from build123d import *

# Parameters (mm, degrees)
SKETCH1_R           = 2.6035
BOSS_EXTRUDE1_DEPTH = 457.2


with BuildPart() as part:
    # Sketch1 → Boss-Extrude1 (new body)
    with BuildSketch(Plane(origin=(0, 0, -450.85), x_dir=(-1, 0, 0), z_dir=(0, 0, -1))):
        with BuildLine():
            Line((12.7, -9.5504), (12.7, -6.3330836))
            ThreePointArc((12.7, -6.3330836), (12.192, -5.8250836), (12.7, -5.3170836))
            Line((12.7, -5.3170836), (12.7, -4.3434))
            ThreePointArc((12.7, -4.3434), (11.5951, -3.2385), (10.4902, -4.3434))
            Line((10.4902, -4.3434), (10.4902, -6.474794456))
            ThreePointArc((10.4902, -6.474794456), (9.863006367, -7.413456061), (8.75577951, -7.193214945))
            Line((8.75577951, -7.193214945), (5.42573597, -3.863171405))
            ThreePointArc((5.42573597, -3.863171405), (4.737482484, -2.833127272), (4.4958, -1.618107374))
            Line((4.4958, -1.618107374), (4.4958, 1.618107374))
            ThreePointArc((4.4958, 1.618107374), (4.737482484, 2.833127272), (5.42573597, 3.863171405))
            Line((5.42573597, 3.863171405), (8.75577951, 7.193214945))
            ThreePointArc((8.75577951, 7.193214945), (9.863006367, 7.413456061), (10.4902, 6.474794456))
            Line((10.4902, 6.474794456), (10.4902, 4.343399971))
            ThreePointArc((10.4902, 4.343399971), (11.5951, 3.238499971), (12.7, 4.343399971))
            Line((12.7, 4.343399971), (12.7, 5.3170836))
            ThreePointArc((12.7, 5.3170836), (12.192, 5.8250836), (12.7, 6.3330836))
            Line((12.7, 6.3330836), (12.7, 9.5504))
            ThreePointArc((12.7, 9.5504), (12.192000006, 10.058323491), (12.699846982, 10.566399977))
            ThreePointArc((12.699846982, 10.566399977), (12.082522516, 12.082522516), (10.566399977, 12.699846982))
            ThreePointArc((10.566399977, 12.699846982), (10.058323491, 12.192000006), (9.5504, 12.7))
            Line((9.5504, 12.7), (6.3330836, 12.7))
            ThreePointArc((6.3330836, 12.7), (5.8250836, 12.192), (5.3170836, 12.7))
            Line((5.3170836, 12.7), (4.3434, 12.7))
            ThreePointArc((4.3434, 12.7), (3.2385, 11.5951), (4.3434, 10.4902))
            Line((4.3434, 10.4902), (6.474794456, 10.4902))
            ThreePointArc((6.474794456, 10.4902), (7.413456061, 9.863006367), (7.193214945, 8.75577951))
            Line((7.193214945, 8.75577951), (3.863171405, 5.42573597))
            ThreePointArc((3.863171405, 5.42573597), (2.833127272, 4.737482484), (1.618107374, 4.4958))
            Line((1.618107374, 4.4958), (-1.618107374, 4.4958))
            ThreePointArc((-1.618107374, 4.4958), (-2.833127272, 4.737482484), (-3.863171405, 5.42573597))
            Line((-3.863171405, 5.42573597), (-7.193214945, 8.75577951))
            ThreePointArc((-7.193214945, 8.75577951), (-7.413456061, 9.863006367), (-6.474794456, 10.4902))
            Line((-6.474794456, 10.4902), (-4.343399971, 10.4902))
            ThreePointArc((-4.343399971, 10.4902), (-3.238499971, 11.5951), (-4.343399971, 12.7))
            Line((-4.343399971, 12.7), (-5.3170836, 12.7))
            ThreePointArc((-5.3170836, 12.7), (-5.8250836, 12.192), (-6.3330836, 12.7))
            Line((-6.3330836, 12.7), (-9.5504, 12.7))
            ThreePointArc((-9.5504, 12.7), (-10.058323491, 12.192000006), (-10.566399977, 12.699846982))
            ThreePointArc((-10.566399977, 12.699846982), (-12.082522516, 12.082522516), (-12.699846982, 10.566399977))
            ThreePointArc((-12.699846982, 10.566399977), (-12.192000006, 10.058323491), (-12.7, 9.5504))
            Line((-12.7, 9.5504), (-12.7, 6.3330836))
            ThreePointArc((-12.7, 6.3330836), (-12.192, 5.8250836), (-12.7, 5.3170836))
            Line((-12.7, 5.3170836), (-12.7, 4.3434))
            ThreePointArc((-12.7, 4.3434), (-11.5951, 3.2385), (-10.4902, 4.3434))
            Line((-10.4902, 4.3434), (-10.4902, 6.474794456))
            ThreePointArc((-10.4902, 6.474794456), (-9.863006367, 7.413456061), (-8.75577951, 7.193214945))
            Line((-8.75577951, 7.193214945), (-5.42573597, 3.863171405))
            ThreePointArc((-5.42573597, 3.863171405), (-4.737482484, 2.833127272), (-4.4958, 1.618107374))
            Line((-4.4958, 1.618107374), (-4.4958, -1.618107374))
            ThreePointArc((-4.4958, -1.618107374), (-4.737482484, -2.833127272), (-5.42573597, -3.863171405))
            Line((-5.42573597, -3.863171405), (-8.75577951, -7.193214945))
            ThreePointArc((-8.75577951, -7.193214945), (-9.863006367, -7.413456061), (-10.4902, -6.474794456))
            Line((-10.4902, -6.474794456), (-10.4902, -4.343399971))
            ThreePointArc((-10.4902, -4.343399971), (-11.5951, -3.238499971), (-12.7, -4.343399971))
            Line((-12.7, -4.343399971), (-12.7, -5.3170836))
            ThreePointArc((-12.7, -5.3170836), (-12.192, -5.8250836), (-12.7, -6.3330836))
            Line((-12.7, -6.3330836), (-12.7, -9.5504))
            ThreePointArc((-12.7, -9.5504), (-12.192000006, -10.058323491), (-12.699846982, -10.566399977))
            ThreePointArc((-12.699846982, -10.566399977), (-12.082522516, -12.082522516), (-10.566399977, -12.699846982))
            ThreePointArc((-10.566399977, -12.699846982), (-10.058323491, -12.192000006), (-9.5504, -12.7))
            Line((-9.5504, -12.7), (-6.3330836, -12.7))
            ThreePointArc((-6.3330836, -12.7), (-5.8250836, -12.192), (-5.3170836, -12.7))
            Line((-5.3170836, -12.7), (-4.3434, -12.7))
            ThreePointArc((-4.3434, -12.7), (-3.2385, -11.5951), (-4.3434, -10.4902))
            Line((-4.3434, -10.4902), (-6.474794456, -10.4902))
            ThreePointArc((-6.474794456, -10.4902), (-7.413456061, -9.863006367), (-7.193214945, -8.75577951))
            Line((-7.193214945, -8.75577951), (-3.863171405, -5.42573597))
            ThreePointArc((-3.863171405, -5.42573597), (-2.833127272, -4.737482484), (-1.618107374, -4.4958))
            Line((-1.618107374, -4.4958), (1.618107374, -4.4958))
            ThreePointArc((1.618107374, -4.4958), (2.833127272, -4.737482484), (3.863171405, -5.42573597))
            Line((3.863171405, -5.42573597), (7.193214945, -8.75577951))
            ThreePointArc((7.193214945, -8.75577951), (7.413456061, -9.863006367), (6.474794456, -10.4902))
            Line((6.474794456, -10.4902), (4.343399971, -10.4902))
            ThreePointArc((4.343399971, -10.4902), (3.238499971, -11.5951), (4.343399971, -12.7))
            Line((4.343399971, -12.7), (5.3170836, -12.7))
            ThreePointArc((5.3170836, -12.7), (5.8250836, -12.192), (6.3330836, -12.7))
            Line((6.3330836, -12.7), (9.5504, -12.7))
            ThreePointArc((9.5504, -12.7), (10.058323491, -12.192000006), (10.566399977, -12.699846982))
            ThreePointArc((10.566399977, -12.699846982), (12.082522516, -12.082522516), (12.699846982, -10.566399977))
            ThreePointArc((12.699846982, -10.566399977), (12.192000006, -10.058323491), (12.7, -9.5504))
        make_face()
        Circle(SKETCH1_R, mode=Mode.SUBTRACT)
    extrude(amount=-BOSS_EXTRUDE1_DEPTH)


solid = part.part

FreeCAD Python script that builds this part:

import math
import FreeCAD as App
import Part
import Sketcher
from FreeCAD import Vector
Q = App.Units.Quantity

doc = App.newDocument("Part")
body = doc.addObject("PartDesign::Body", "Body")

# Sketch on XY plane
sketch1 = doc.addObject("Sketcher::SketchObject", "Sketch")
body.addObject(sketch1)
sketch1.AttachmentSupport = (doc.XY_Plane, [""])
sketch1.MapMode = "FlatFace"
sketch1.AttachmentOffset = App.Placement(Vector(0, 0, -17.75 * 25.4), App.Rotation())
sketch1.addGeometry([
    Part.LineSegment(Vector(-12.7, -9.6, 0), Vector(-12.7, -6.3, 0)),  # 0
    Part.ArcOfCircle(Part.Circle(Vector(-12.7, -5.8, 0), Vector(0, 0, 1), 0.5), math.radians(-90), math.radians(90)),  # 1
    Part.LineSegment(Vector(-12.7, -5.3, 0), Vector(-12.7, -4.3, 0)),  # 2
    Part.ArcOfCircle(Part.Circle(Vector(-11.6, -4.3, 0), Vector(0, 0, 1), 1.1), math.radians(0), math.radians(180)),  # 3
    Part.LineSegment(Vector(-10.5, -4.3, 0), Vector(-10.5, -6.5, 0)),  # 4
    Part.ArcOfCircle(Part.Circle(Vector(-9.5, -6.5, 0), Vector(0, 0, 1), 1), math.radians(180), math.radians(315)),  # 5
    Part.LineSegment(Vector(-8.8, -7.2, 0), Vector(-5.4, -3.9, 0)),  # 6
    Part.ArcOfCircle(Part.Circle(Vector(-7.7, -1.6, 0), Vector(0, 0, 1), 3.2), math.radians(-45), math.radians(0)),  # 7
    Part.LineSegment(Vector(-4.5, -1.6, 0), Vector(-4.5, 1.6, 0)),  # 8
    Part.ArcOfCircle(Part.Circle(Vector(-7.7, 1.6, 0), Vector(0, 0, 1), 3.2), math.radians(0), math.radians(45)),  # 9
    Part.LineSegment(Vector(-5.4, 3.9, 0), Vector(-8.8, 7.2, 0)),  # 10
    Part.ArcOfCircle(Part.Circle(Vector(-9.5, 6.5, 0), Vector(0, 0, 1), 1), math.radians(45), math.radians(180)),  # 11
    Part.LineSegment(Vector(-10.5, 6.5, 0), Vector(-10.5, 4.3, 0)),  # 12
    Part.ArcOfCircle(Part.Circle(Vector(-11.6, 4.3, 0), Vector(0, 0, 1), 1.1), math.radians(180), math.radians(360)),  # 13
    Part.LineSegment(Vector(-12.7, 4.3, 0), Vector(-12.7, 5.3, 0)),  # 14
    Part.ArcOfCircle(Part.Circle(Vector(-12.7, 5.8, 0), Vector(0, 0, 1), 0.5), math.radians(-90), math.radians(90)),  # 15
    Part.LineSegment(Vector(-12.7, 6.3, 0), Vector(-12.7, 9.6, 0)),  # 16
    Part.ArcOfCircle(Part.Circle(Vector(-12.7, 10.1, 0), Vector(0, 0, 1), 0.5), math.radians(-90), math.radians(90)),  # 17
    Part.ArcOfCircle(Part.Circle(Vector(-10.6, 10.6, 0), Vector(0, 0, 1), 2.1), math.radians(89), math.radians(181)),  # 18
    Part.ArcOfCircle(Part.Circle(Vector(-10.1, 12.7, 0), Vector(0, 0, 1), 0.5), math.radians(-180), math.radians(0)),  # 19
    Part.LineSegment(Vector(-9.6, 12.7, 0), Vector(-6.3, 12.7, 0)),  # 20
    Part.ArcOfCircle(Part.Circle(Vector(-5.8, 12.7, 0), Vector(0, 0, 1), 0.5), math.radians(180), math.radians(360)),  # 21
    Part.LineSegment(Vector(-5.3, 12.7, 0), Vector(-4.3, 12.7, 0)),  # 22
    Part.ArcOfCircle(Part.Circle(Vector(-4.3, 11.6, 0), Vector(0, 0, 1), 1.1), math.radians(-90), math.radians(90)),  # 23
    Part.LineSegment(Vector(-4.3, 10.5, 0), Vector(-6.5, 10.5, 0)),  # 24
    Part.ArcOfCircle(Part.Circle(Vector(-6.5, 9.5, 0), Vector(0, 0, 1), 1), math.radians(90), math.radians(225)),  # 25
    Part.LineSegment(Vector(-7.2, 8.8, 0), Vector(-3.9, 5.4, 0)),  # 26
    Part.ArcOfCircle(Part.Circle(Vector(-1.6, 7.7, 0), Vector(0, 0, 1), 3.2), math.radians(-135), math.radians(-90)),  # 27
    Part.LineSegment(Vector(-1.6, 4.5, 0), Vector(1.6, 4.5, 0)),  # 28
    Part.ArcOfCircle(Part.Circle(Vector(1.6, 7.7, 0), Vector(0, 0, 1), 3.2), math.radians(-90), math.radians(-45)),  # 29
    Part.LineSegment(Vector(3.9, 5.4, 0), Vector(7.2, 8.8, 0)),  # 30
    Part.ArcOfCircle(Part.Circle(Vector(6.5, 9.5, 0), Vector(0, 0, 1), 1), math.radians(-45), math.radians(90)),  # 31
    Part.LineSegment(Vector(6.5, 10.5, 0), Vector(4.3, 10.5, 0)),  # 32
    Part.ArcOfCircle(Part.Circle(Vector(4.3, 11.6, 0), Vector(0, 0, 1), 1.1), math.radians(90), math.radians(270)),  # 33
    Part.LineSegment(Vector(4.3, 12.7, 0), Vector(5.3, 12.7, 0)),  # 34
    Part.ArcOfCircle(Part.Circle(Vector(5.8, 12.7, 0), Vector(0, 0, 1), 0.5), math.radians(180), math.radians(360)),  # 35
    Part.LineSegment(Vector(6.3, 12.7, 0), Vector(9.6, 12.7, 0)),  # 36
    Part.ArcOfCircle(Part.Circle(Vector(10.1, 12.7, 0), Vector(0, 0, 1), 0.5), math.radians(180), math.radians(360)),  # 37
    Part.ArcOfCircle(Part.Circle(Vector(10.6, 10.6, 0), Vector(0, 0, 1), 2.1), math.radians(-1), math.radians(91)),  # 38
    Part.ArcOfCircle(Part.Circle(Vector(12.7, 10.1, 0), Vector(0, 0, 1), 0.5), math.radians(90), math.radians(270)),  # 39
    Part.LineSegment(Vector(12.7, 9.6, 0), Vector(12.7, 6.3, 0)),  # 40
    Part.ArcOfCircle(Part.Circle(Vector(12.7, 5.8, 0), Vector(0, 0, 1), 0.5), math.radians(90), math.radians(270)),  # 41
    Part.LineSegment(Vector(12.7, 5.3, 0), Vector(12.7, 4.3, 0)),  # 42
    Part.ArcOfCircle(Part.Circle(Vector(11.6, 4.3, 0), Vector(0, 0, 1), 1.1), math.radians(180), math.radians(360)),  # 43
    Part.LineSegment(Vector(10.5, 4.3, 0), Vector(10.5, 6.5, 0)),  # 44
    Part.ArcOfCircle(Part.Circle(Vector(9.5, 6.5, 0), Vector(0, 0, 1), 1), math.radians(0), math.radians(135)),  # 45
    Part.LineSegment(Vector(8.8, 7.2, 0), Vector(5.4, 3.9, 0)),  # 46
    Part.ArcOfCircle(Part.Circle(Vector(7.7, 1.6, 0), Vector(0, 0, 1), 3.2), math.radians(135), math.radians(180)),  # 47
    Part.LineSegment(Vector(4.5, 1.6, 0), Vector(4.5, -1.6, 0)),  # 48
    Part.ArcOfCircle(Part.Circle(Vector(7.7, -1.6, 0), Vector(0, 0, 1), 3.2), math.radians(180), math.radians(225)),  # 49
    Part.LineSegment(Vector(5.4, -3.9, 0), Vector(8.8, -7.2, 0)),  # 50
    Part.ArcOfCircle(Part.Circle(Vector(9.5, -6.5, 0), Vector(0, 0, 1), 1), math.radians(-135), math.radians(0)),  # 51
    Part.LineSegment(Vector(10.5, -6.5, 0), Vector(10.5, -4.3, 0)),  # 52
    Part.ArcOfCircle(Part.Circle(Vector(11.6, -4.3, 0), Vector(0, 0, 1), 1.1), math.radians(0), math.radians(180)),  # 53
    Part.LineSegment(Vector(12.7, -4.3, 0), Vector(12.7, -5.3, 0)),  # 54
    Part.ArcOfCircle(Part.Circle(Vector(12.7, -5.8, 0), Vector(0, 0, 1), 0.5), math.radians(90), math.radians(270)),  # 55
    Part.LineSegment(Vector(12.7, -6.3, 0), Vector(12.7, -9.6, 0)),  # 56
    Part.ArcOfCircle(Part.Circle(Vector(12.7, -10.1, 0), Vector(0, 0, 1), 0.5), math.radians(90), math.radians(270)),  # 57
    Part.ArcOfCircle(Part.Circle(Vector(10.6, -10.6, 0), Vector(0, 0, 1), 2.1), math.radians(-91), math.radians(1)),  # 58
    Part.ArcOfCircle(Part.Circle(Vector(10.1, -12.7, 0), Vector(0, 0, 1), 0.5), math.radians(0), math.radians(180)),  # 59
    Part.LineSegment(Vector(9.6, -12.7, 0), Vector(6.3, -12.7, 0)),  # 60
    Part.ArcOfCircle(Part.Circle(Vector(5.8, -12.7, 0), Vector(0, 0, 1), 0.5), math.radians(0), math.radians(180)),  # 61
    Part.LineSegment(Vector(5.3, -12.7, 0), Vector(4.3, -12.7, 0)),  # 62
    Part.ArcOfCircle(Part.Circle(Vector(4.3, -11.6, 0), Vector(0, 0, 1), 1.1), math.radians(90), math.radians(270)),  # 63
    Part.LineSegment(Vector(4.3, -10.5, 0), Vector(6.5, -10.5, 0)),  # 64
    Part.ArcOfCircle(Part.Circle(Vector(6.5, -9.5, 0), Vector(0, 0, 1), 1), math.radians(-90), math.radians(45)),  # 65
    Part.LineSegment(Vector(7.2, -8.8, 0), Vector(3.9, -5.4, 0)),  # 66
    Part.ArcOfCircle(Part.Circle(Vector(1.6, -7.7, 0), Vector(0, 0, 1), 3.2), math.radians(45), math.radians(90)),  # 67
    Part.LineSegment(Vector(1.6, -4.5, 0), Vector(-1.6, -4.5, 0)),  # 68
    Part.ArcOfCircle(Part.Circle(Vector(-1.6, -7.7, 0), Vector(0, 0, 1), 3.2), math.radians(90), math.radians(135)),  # 69
    Part.LineSegment(Vector(-3.9, -5.4, 0), Vector(-7.2, -8.8, 0)),  # 70
    Part.ArcOfCircle(Part.Circle(Vector(-6.5, -9.5, 0), Vector(0, 0, 1), 1), math.radians(135), math.radians(270)),  # 71
    Part.LineSegment(Vector(-6.5, -10.5, 0), Vector(-4.3, -10.5, 0)),  # 72
    Part.ArcOfCircle(Part.Circle(Vector(-4.3, -11.6, 0), Vector(0, 0, 1), 1.1), math.radians(-90), math.radians(90)),  # 73
    Part.LineSegment(Vector(-4.3, -12.7, 0), Vector(-5.3, -12.7, 0)),  # 74
    Part.ArcOfCircle(Part.Circle(Vector(-5.8, -12.7, 0), Vector(0, 0, 1), 0.5), math.radians(0), math.radians(180)),  # 75
    Part.LineSegment(Vector(-6.3, -12.7, 0), Vector(-9.6, -12.7, 0)),  # 76
    Part.ArcOfCircle(Part.Circle(Vector(-10.1, -12.7, 0), Vector(0, 0, 1), 0.5), math.radians(0), math.radians(180)),  # 77
    Part.ArcOfCircle(Part.Circle(Vector(-10.6, -10.6, 0), Vector(0, 0, 1), 2.1), math.radians(179), math.radians(271)),  # 78
    Part.ArcOfCircle(Part.Circle(Vector(-12.7, -10.1, 0), Vector(0, 0, 1), 0.5), math.radians(-90), math.radians(90)),  # 79
    Part.Circle(Vector(0, 0, 0), Vector(0, 0, 1), 2.6),  # 80
], False)
sketch1.addConstraint([
    Sketcher.Constraint("Coincident", 0, 2, 1, 1),
    Sketcher.Constraint("Coincident", 1, 2, 2, 1),
    Sketcher.Constraint("Tangent", 2, 2, 3, 2),
    Sketcher.Constraint("Tangent", 3, 1, 4, 1),
    Sketcher.Constraint("Tangent", 4, 2, 5, 1),
    Sketcher.Constraint("Tangent", 5, 2, 6, 1),
    Sketcher.Constraint("Tangent", 6, 2, 7, 1),
    Sketcher.Constraint("Tangent", 7, 2, 8, 1),
    Sketcher.Constraint("Tangent", 8, 2, 9, 1),
    Sketcher.Constraint("Tangent", 9, 2, 10, 1),
    Sketcher.Constraint("Tangent", 10, 2, 11, 1),
    Sketcher.Constraint("Tangent", 11, 2, 12, 1),
    Sketcher.Constraint("Tangent", 12, 2, 13, 2),
    Sketcher.Constraint("Tangent", 13, 1, 14, 1),
    Sketcher.Constraint("Coincident", 14, 2, 15, 1),
    Sketcher.Constraint("Coincident", 15, 2, 16, 1),
    Sketcher.Constraint("Coincident", 16, 2, 17, 1),
    Sketcher.Constraint("Coincident", 17, 2, 18, 2),
    Sketcher.Constraint("Coincident", 18, 1, 19, 1),
    Sketcher.Constraint("Coincident", 19, 2, 20, 1),
    Sketcher.Constraint("Coincident", 20, 2, 21, 1),
    Sketcher.Constraint("Coincident", 21, 2, 22, 1),
    Sketcher.Constraint("Tangent", 22, 2, 23, 2),
    Sketcher.Constraint("Tangent", 23, 1, 24, 1),
    Sketcher.Constraint("Tangent", 24, 2, 25, 1),
    Sketcher.Constraint("Tangent", 25, 2, 26, 1),
    Sketcher.Constraint("Tangent", 26, 2, 27, 1),
    Sketcher.Constraint("Tangent", 27, 2, 28, 1),
    Sketcher.Constraint("Tangent", 28, 2, 29, 1),
    Sketcher.Constraint("Tangent", 29, 2, 30, 1),
    Sketcher.Constraint("Tangent", 30, 2, 31, 1),
    Sketcher.Constraint("Tangent", 31, 2, 32, 1),
    Sketcher.Constraint("Tangent", 32, 2, 33, 2),
    Sketcher.Constraint("Tangent", 33, 1, 34, 1),
    Sketcher.Constraint("Coincident", 34, 2, 35, 1),
    Sketcher.Constraint("Coincident", 35, 2, 36, 1),
    Sketcher.Constraint("Coincident", 36, 2, 37, 1),
    Sketcher.Constraint("Coincident", 37, 2, 38, 2),
    Sketcher.Constraint("Coincident", 38, 1, 39, 1),
    Sketcher.Constraint("Coincident", 39, 2, 40, 1),
    Sketcher.Constraint("Coincident", 40, 2, 41, 1),
    Sketcher.Constraint("Coincident", 41, 2, 42, 1),
    Sketcher.Constraint("Tangent", 42, 2, 43, 2),
    Sketcher.Constraint("Tangent", 43, 1, 44, 1),
    Sketcher.Constraint("Tangent", 44, 2, 45, 1),
    Sketcher.Constraint("Tangent", 45, 2, 46, 1),
    Sketcher.Constraint("Tangent", 46, 2, 47, 1),
    Sketcher.Constraint("Tangent", 47, 2, 48, 1),
    Sketcher.Constraint("Tangent", 48, 2, 49, 1),
    Sketcher.Constraint("Tangent", 49, 2, 50, 1),
    Sketcher.Constraint("Tangent", 50, 2, 51, 1),
    Sketcher.Constraint("Tangent", 51, 2, 52, 1),
    Sketcher.Constraint("Tangent", 52, 2, 53, 2),
    Sketcher.Constraint("Tangent", 53, 1, 54, 1),
    Sketcher.Constraint("Coincident", 54, 2, 55, 1),
    Sketcher.Constraint("Coincident", 55, 2, 56, 1),
    Sketcher.Constraint("Coincident", 56, 2, 57, 1),
    Sketcher.Constraint("Coincident", 57, 2, 58, 2),
    Sketcher.Constraint("Coincident", 58, 1, 59, 1),
    Sketcher.Constraint("Coincident", 59, 2, 60, 1),
    Sketcher.Constraint("Coincident", 60, 2, 61, 1),
    Sketcher.Constraint("Coincident", 61, 2, 62, 1),
    Sketcher.Constraint("Tangent", 62, 2, 63, 2),
    Sketcher.Constraint("Tangent", 63, 1, 64, 1),
    Sketcher.Constraint("Tangent", 64, 2, 65, 1),
    Sketcher.Constraint("Tangent", 65, 2, 66, 1),
    Sketcher.Constraint("Tangent", 66, 2, 67, 1),
    Sketcher.Constraint("Tangent", 67, 2, 68, 1),
    Sketcher.Constraint("Tangent", 68, 2, 69, 1),
    Sketcher.Constraint("Tangent", 69, 2, 70, 1),
    Sketcher.Constraint("Tangent", 70, 2, 71, 1),
    Sketcher.Constraint("Tangent", 71, 2, 72, 1),
    Sketcher.Constraint("Tangent", 72, 2, 73, 2),
    Sketcher.Constraint("Tangent", 73, 1, 74, 1),
    Sketcher.Constraint("Coincident", 74, 2, 75, 1),
    Sketcher.Constraint("Coincident", 75, 2, 76, 1),
    Sketcher.Constraint("Coincident", 76, 2, 77, 1),
    Sketcher.Constraint("Coincident", 77, 2, 78, 2),
    Sketcher.Constraint("Coincident", 78, 1, 79, 1),
    Sketcher.Constraint("Coincident", 79, 2, 0, 1),
    Sketcher.Constraint("Vertical", 0),
    Sketcher.Constraint("Vertical", 2),
    Sketcher.Constraint("Vertical", 4),
    Sketcher.Constraint("Vertical", 8),
    Sketcher.Constraint("Vertical", 12),
    Sketcher.Constraint("Vertical", 14),
    Sketcher.Constraint("Vertical", 16),
    Sketcher.Constraint("Horizontal", 20),
    Sketcher.Constraint("Horizontal", 22),
    Sketcher.Constraint("Horizontal", 24),
    Sketcher.Constraint("Horizontal", 28),
    Sketcher.Constraint("Horizontal", 32),
    Sketcher.Constraint("Horizontal", 34),
    Sketcher.Constraint("Horizontal", 36),
    Sketcher.Constraint("Vertical", 40),
    Sketcher.Constraint("Vertical", 42),
    Sketcher.Constraint("Vertical", 44),
    Sketcher.Constraint("Vertical", 48),
    Sketcher.Constraint("Vertical", 52),
    Sketcher.Constraint("Vertical", 54),
    Sketcher.Constraint("Vertical", 56),
    Sketcher.Constraint("Horizontal", 60),
    Sketcher.Constraint("Horizontal", 62),
    Sketcher.Constraint("Horizontal", 64),
    Sketcher.Constraint("Horizontal", 68),
    Sketcher.Constraint("Horizontal", 72),
    Sketcher.Constraint("Horizontal", 74),
    Sketcher.Constraint("Horizontal", 76),
    Sketcher.Constraint("Coincident", 80, 3, -1, 1),
    Sketcher.Constraint("Equal", 7, 9),
    Sketcher.Constraint("Equal", 5, 11),
    Sketcher.Constraint("Equal", 3, 13),
    Sketcher.Constraint("Equal", 1, 15),
    Sketcher.Constraint("Equal", 15, 17),
    Sketcher.Constraint("Equal", 17, 19),
    Sketcher.Constraint("Equal", 19, 21),
    Sketcher.Constraint("Equal", 13, 23),
    Sketcher.Constraint("Equal", 11, 25),
    Sketcher.Constraint("Equal", 9, 27),
    Sketcher.Constraint("Equal", 27, 29),
    Sketcher.Constraint("Equal", 25, 31),
    Sketcher.Constraint("Equal", 23, 33),
    Sketcher.Constraint("Equal", 21, 35),
    Sketcher.Constraint("Equal", 35, 37),
    Sketcher.Constraint("Equal", 18, 38),
    Sketcher.Constraint("Equal", 37, 39),
    Sketcher.Constraint("Equal", 39, 41),
    Sketcher.Constraint("Equal", 33, 43),
    Sketcher.Constraint("Equal", 31, 45),
    Sketcher.Constraint("Equal", 29, 47),
    Sketcher.Constraint("Equal", 47, 49),
    Sketcher.Constraint("Equal", 45, 51),
    Sketcher.Constraint("Equal", 43, 53),
    Sketcher.Constraint("Equal", 41, 55),
    Sketcher.Constraint("Equal", 55, 57),
    Sketcher.Constraint("Equal", 38, 58),
    Sketcher.Constraint("Equal", 57, 59),
    Sketcher.Constraint("Equal", 59, 61),
    Sketcher.Constraint("Equal", 53, 63),
    Sketcher.Constraint("Equal", 51, 65),
    Sketcher.Constraint("Equal", 49, 67),
    Sketcher.Constraint("Equal", 67, 69),
    Sketcher.Constraint("Equal", 65, 71),
    Sketcher.Constraint("Equal", 63, 73),
    Sketcher.Constraint("Equal", 61, 75),
    Sketcher.Constraint("Equal", 75, 77),
    Sketcher.Constraint("Equal", 58, 78),
    Sketcher.Constraint("Equal", 77, 79),
    Sketcher.Constraint("Symmetric", 1, 3, 41, 3, -1, 1),
    Sketcher.Constraint("Symmetric", 3, 3, 43, 3, -1, 1),
    Sketcher.Constraint("Symmetric", 7, 3, 47, 3, -1, 1),
    Sketcher.Constraint("Symmetric", 11, 3, 51, 3, -1, 1),
    Sketcher.Constraint("Symmetric", 15, 3, 55, 3, -1, 1),
    Sketcher.Constraint("Symmetric", 17, 3, 57, 3, -1, 1),
    Sketcher.Constraint("Symmetric", 18, 3, 58, 3, -1, 1),
    Sketcher.Constraint("Symmetric", 19, 3, 59, 3, -1, 1),
    Sketcher.Constraint("Symmetric", 21, 3, 61, 3, -1, 1),
    Sketcher.Constraint("Symmetric", 23, 3, 63, 3, -1, 1),
    Sketcher.Constraint("Symmetric", 27, 3, 67, 3, -1, 1),
    Sketcher.Constraint("Symmetric", 31, 3, 71, 3, -1, 1),
    Sketcher.Constraint("Symmetric", 35, 3, 75, 3, -1, 1),
    Sketcher.Constraint("Symmetric", 37, 3, 77, 3, -1, 1),
    Sketcher.Constraint("Symmetric", 38, 3, 78, 3, -1, 1),
    Sketcher.Constraint("Symmetric", 39, 3, 79, 3, -1, 1),
    Sketcher.Constraint("Symmetric", 25, 3, 31, 3, -2),
    Sketcher.Constraint("Symmetric", 21, 3, 35, 3, -2),
    Sketcher.Constraint("Symmetric", 19, 3, 37, 3, -2),
    Sketcher.Constraint("Symmetric", 18, 3, 38, 3, -2),
    Sketcher.Constraint("Symmetric", 17, 3, 39, 3, -2),
    Sketcher.Constraint("Symmetric", 15, 3, 41, 3, -2),
    Sketcher.Constraint("Symmetric", 13, 3, 43, 3, -2),
    Sketcher.Constraint("Symmetric", 10, 2, 45, 2, -2),
    Sketcher.Constraint("Symmetric", 6, 2, 49, 2, -2),
    Sketcher.Constraint("Symmetric", 66, 2, 69, 2, -2),
    Sketcher.Constraint("Perpendicular", 6, 10),
    Sketcher.Constraint("Parallel", 10, 26),
    Sketcher.Constraint("Perpendicular", 26, 30),
    Sketcher.Constraint("Horizontal", 19, 3, 21, 3),
    Sketcher.Constraint("Horizontal", 3, 3, 53, 3),
    Sketcher.Constraint("Horizontal", 37, 3, 19, 2),
    Sketcher.Constraint("Horizontal", 20, 2, 21, 2),
    Sketcher.Constraint("Horizontal", 34, 2, 35, 2),
    Sketcher.Constraint("Horizontal", 77, 3, 59, 2),
    Sketcher.Constraint("Horizontal", 74, 2, 75, 2),
    Sketcher.Constraint("Vertical", 15, 3, 17, 3),
    Sketcher.Constraint("Vertical", 33, 3, 63, 3),
    Sketcher.Constraint("Vertical", 23, 3, 73, 3),
    Sketcher.Constraint("Vertical", 79, 3, 0, 2),
    Sketcher.Constraint("Vertical", 0, 2, 1, 2),
    Sketcher.Constraint("Vertical", 14, 2, 15, 2),
    Sketcher.Constraint("Vertical", 57, 3, 39, 2),
    Sketcher.Constraint("Vertical", 54, 2, 55, 2),
    Sketcher.Constraint("Equal", 76, 0),
    Sketcher.Constraint("Equal", 74, 2),
    Sketcher.Constraint("Equal", 72, 4),
    Sketcher.Constraint("Equal", 68, 8),
    Sketcher.Constraint("Equal", 10, 26),
    Sketcher.Constraint("Radius", 1, Q("0.02 in")),
    Sketcher.Constraint("Radius", 5, Q("0.04 in")),
    Sketcher.Constraint("Diameter", 80, Q("0.205 in")),
    Sketcher.Constraint("Radius", 7, Q("0.125 in")),
    Sketcher.Constraint("Radius", 18, Q("0.083 in")),
    Sketcher.Constraint("DistanceX", 1, 3, -1, 1, Q("0.5 in")),
    Sketcher.Constraint("DistanceY", -1, 1, 19, 3, Q("0.5 in")),
    Sketcher.Constraint("Radius", 3, Q("0.0435 in")),
    Sketcher.Constraint("DistanceY", 3, 3, -1, 1, Q("0.171 in")),
    Sketcher.Constraint("DistanceX", 7, 3, -1, 1, Q("0.302 in")),
    Sketcher.Constraint("DistanceY", -1, 1, 17, 3, Q("0.396 in")),
    Sketcher.Constraint("DistanceX", 18, 3, -1, 1, Q("0.417 in")),
    Sketcher.Constraint("DistanceY", -1, 1, 18, 3, Q("0.417 in")),
    Sketcher.Constraint("DistanceX", 20, 1, 20, 2, 3.217316),
    Sketcher.Constraint("DistanceX", 24, 2, 24, 1, 2.131394),
])
pad1 = doc.addObject("PartDesign::Pad", "Pad")
body.addObject(pad1)
pad1.Profile = sketch1
pad1.Length = Q("18 in")

doc.recompute()
